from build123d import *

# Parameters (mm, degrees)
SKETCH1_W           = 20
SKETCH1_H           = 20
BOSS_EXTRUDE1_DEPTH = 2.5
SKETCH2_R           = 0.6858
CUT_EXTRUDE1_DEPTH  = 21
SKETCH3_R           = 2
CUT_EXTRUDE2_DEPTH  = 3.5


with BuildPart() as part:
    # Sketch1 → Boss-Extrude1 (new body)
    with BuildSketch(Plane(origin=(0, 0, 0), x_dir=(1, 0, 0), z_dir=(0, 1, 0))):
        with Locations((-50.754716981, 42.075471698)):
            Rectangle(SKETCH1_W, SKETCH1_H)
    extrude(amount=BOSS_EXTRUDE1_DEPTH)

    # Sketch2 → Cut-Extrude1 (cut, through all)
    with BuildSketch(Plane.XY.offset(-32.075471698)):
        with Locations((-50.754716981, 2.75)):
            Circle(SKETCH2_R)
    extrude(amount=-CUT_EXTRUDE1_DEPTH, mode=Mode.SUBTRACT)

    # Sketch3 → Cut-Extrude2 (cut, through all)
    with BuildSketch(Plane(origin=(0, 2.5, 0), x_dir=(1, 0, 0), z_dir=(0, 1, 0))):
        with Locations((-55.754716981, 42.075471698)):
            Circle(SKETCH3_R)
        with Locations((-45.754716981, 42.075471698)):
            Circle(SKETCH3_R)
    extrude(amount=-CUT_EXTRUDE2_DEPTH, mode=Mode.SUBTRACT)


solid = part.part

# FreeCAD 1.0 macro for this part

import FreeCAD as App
import Part
import Sketcher

V = App.Vector

doc = App.newDocument("Part")
body = doc.addObject("PartDesign::Body", "Body")

# Sketch on XZ plane
sketch1 = doc.addObject("Sketcher::SketchObject", "Sketch")
body.addObject(sketch1)
sketch1.AttachmentSupport = (doc.XZ_Plane, [""])
sketch1.MapMode = "FlatFace"
sketch1.addGeometry(Part.LineSegment(V(-61, -52, 0), V(-61, -32, 0)), False)
sketch1.addGeometry(Part.LineSegment(V(-61, -32, 0), V(-41, -32, 0)), False)
sketch1.addGeometry(Part.LineSegment(V(-41, -32, 0), V(-41, -52, 0)), False)
sketch1.addGeometry(Part.LineSegment(V(-41, -52, 0), V(-61, -52, 0)), False)
sketch1.addConstraint(Sketcher.Constraint("Coincident", 0, 2, 1, 1))
sketch1.addConstraint(Sketcher.Constraint("Coincident", 1, 2, 2, 1))
sketch1.addConstraint(Sketcher.Constraint("Coincident", 2, 2, 3, 1))
sketch1.addConstraint(Sketcher.Constraint("Coincident", 3, 2, 0, 1))
sketch1.addConstraint(Sketcher.Constraint("Vertical", 0))
sketch1.addConstraint(Sketcher.Constraint("Horizontal", 1))
sketch1.addConstraint(Sketcher.Constraint("Vertical", 2))
sketch1.addConstraint(Sketcher.Constraint("Horizontal", 3))
sketch1.addConstraint(Sketcher.Constraint("Equal", 3, 0))
sketch1.addConstraint(Sketcher.Constraint("DistanceX", 1, 1, 1, 2, 20.0))
sketch1.addConstraint(Sketcher.Constraint("DistanceY", 0, 2, -1, 1, 32.075472))
sketch1.addConstraint(Sketcher.Constraint("DistanceX", 0, 2, -1, 1, 60.754717))
pad1 = doc.addObject("PartDesign::Pad", "Pad")
body.addObject(pad1)
pad1.Profile = sketch1
pad1.Length = 2.5
pad1.Reversed = True

# Sketch on XY plane
sketch2 = doc.addObject("Sketcher::SketchObject", "Sketch001")
body.addObject(sketch2)
sketch2.AttachmentSupport = (doc.XY_Plane, [""])
sketch2.MapMode = "FlatFace"
sketch2.AttachmentOffset = App.Placement(V(0, 0, -32.075472), App.Rotation())
sketch2.addGeometry(Part.Circle(V(-50.8, 2.8, 0), V(0, 0, 1), 0.7), False)
sketch2.addConstraint(Sketcher.Constraint("Diameter", 0, 1.3716))
sketch2.addConstraint(Sketcher.Constraint("DistanceY", -1, 1, 0, 3, 2.75))
sketch2.addConstraint(Sketcher.Constraint("DistanceX", 0, 3, -1, 1, 50.754717))
pocket1 = doc.addObject("PartDesign::Pocket", "Pocket")
body.addObject(pocket1)
pocket1.Profile = sketch2
pocket1.Type = "ThroughAll"

# Sketch on XZ plane
sketch3 = doc.addObject("Sketcher::SketchObject", "Sketch002")
body.addObject(sketch3)
sketch3.AttachmentSupport = (doc.XZ_Plane, [""])
sketch3.MapMode = "FlatFace"
sketch3.AttachmentOffset = App.Placement(V(0, 0, -2.5), App.Rotation())
sketch3.addGeometry(Part.Circle(V(-55.8, -42.1, 0), V(0, 0, 1), 2), False)
sketch3.addGeometry(Part.Circle(V(-45.8, -42.1, 0), V(0, 0, 1), 2), False)
sketch3.addConstraint(Sketcher.Constraint("Equal", 0, 1))
sketch3.addConstraint(Sketcher.Constraint("Horizontal", 0, 3, 1, 3))
sketch3.addConstraint(Sketcher.Constraint("Diameter", 0, 4.0))
sketch3.addConstraint(Sketcher.Constraint("DistanceX", 0, 3, 1, 3, 10.0))
sketch3.addConstraint(Sketcher.Constraint("DistanceY", 0, 3, -1, 1, 42.075472))
sketch3.addConstraint(Sketcher.Constraint("DistanceX", 0, 3, -1, 1, 55.754717))
pocket2 = doc.addObject("PartDesign::Pocket", "Pocket001")
body.addObject(pocket2)
pocket2.Profile = sketch3
pocket2.Type = "ThroughAll"
pocket2.Reversed = True

doc.recompute()
